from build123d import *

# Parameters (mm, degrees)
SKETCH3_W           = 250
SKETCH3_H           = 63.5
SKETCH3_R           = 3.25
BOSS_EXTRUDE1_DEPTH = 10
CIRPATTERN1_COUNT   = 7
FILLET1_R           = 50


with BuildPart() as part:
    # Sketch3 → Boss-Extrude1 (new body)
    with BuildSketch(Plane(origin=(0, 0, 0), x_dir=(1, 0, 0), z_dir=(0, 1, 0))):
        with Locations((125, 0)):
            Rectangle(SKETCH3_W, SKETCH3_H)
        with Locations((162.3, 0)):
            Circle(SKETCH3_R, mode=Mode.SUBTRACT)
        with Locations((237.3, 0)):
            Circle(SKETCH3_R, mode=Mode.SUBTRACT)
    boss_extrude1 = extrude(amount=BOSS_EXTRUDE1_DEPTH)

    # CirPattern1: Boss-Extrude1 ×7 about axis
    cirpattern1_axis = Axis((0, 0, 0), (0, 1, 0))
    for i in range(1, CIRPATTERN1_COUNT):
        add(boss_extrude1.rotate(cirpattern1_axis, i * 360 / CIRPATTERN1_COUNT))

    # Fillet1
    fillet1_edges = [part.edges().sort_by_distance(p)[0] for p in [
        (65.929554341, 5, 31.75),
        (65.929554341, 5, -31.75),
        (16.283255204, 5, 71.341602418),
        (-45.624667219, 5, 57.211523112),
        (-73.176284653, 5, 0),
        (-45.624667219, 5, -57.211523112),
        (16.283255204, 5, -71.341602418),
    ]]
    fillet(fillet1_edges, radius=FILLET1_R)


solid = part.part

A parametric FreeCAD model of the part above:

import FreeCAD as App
import Part
import Sketcher

V = App.Vector
Q = App.Units.Quantity


def edges_at(feature, points):
    """Names of the edges that pass closest to the given points."""
    edges = feature.Shape.Edges
    near = lambda p: min(range(len(edges)), key=lambda i: edges[i].distToShape(Part.Vertex(*p))[0])
    return sorted({f"Edge{near(p) + 1}" for p in points})


def add_polygon(sketch, points):
    """Adds a closed chain of lines whose ends are joined by coincident constraints."""
    first, n = sketch.GeometryCount, len(points)
    for a, b in zip(points, points[1:] + points[:1]):
        sketch.addGeometry(Part.LineSegment(App.Vector(*a, 0), App.Vector(*b, 0)), False)
    for i in range(n):
        sketch.addConstraint(Sketcher.Constraint("Coincident", first + i, 2, first + (i + 1) % n, 1))

doc = App.newDocument("Part")
body = doc.addObject("PartDesign::Body", "Body")

# Sketch on XZ plane
sketch1 = body.newObject("Sketcher::SketchObject", "Sketch")
sketch1.AttachmentSupport = (doc.getObject("XZ_Plane"), [""])
sketch1.MapMode = "FlatFace"
add_polygon(sketch1, [(0, -31.8), (0, 31.8), (250, 31.8), (250, -31.8)])  # lines 0-3
sketch1.addGeometry(Part.Circle(V(162.3, 0, 0), V(0, 0, 1), 3.2), False)  # 4
sketch1.addGeometry(Part.Circle(V(237.3, 0, 0), V(0, 0, 1), 3.2), False)  # 5
sketch1.addConstraint(Sketcher.Constraint("Vertical", 0))
sketch1.addConstraint(Sketcher.Constraint("Horizontal", 1))
sketch1.addConstraint(Sketcher.Constraint("Vertical", 2))
sketch1.addConstraint(Sketcher.Constraint("Horizontal", 3))
sketch1.addConstraint(Sketcher.Constraint("Equal", 4, 5))
sketch1.addConstraint(Sketcher.Constraint("Symmetric", 0, 2, 3, 2, -1, 1))
sketch1.addConstraint(Sketcher.Constraint("PointOnObject", 4, 3, -1))
sketch1.addConstraint(Sketcher.Constraint("PointOnObject", 5, 3, -1))
sketch1.addConstraint(Sketcher.Constraint("Diameter", 4, Q("6.5 mm")))
sketch1.addConstraint(Sketcher.Constraint("DistanceX", 1, 1, 1, 2, Q("250 mm")))
sketch1.addConstraint(Sketcher.Constraint("DistanceY", 0, 1, 0, 2, Q("63.5 mm")))
sketch1.addConstraint(Sketcher.Constraint("DistanceX", 4, 3, 5, 3, Q("75 mm")))
sketch1.addConstraint(Sketcher.Constraint("DistanceX", -1, 1, 4, 3, Q("162.3 mm")))
pad1 = body.newObject("PartDesign::Pad", "Pad")
pad1.Profile = sketch1
pad1.Length = 10
pad1.Reversed = True
doc.recompute()

polarpattern = body.newObject("PartDesign::PolarPattern", "PolarPattern")
polarpattern.Originals = [pad1]
polarpattern.Axis = (doc.getObject("Y_Axis"), [""])
polarpattern.Angle = 360
polarpattern.Occurrences = 7
body.Tip = polarpattern
doc.recompute()

fillet = body.newObject("PartDesign::Fillet", "Fillet")
fillet.Base = (polarpattern, edges_at(polarpattern, [
    (65.93, 5, 31.75),
    (65.93, 5, -31.75),
    (16.283, 5, 71.342),
    (-45.625, 5, 57.212),
    (-73.176, 5, 0),
    (-45.625, 5, -57.212),
    (16.283, 5, -71.342),
]))
fillet.Radius = 50

doc.recompute()
